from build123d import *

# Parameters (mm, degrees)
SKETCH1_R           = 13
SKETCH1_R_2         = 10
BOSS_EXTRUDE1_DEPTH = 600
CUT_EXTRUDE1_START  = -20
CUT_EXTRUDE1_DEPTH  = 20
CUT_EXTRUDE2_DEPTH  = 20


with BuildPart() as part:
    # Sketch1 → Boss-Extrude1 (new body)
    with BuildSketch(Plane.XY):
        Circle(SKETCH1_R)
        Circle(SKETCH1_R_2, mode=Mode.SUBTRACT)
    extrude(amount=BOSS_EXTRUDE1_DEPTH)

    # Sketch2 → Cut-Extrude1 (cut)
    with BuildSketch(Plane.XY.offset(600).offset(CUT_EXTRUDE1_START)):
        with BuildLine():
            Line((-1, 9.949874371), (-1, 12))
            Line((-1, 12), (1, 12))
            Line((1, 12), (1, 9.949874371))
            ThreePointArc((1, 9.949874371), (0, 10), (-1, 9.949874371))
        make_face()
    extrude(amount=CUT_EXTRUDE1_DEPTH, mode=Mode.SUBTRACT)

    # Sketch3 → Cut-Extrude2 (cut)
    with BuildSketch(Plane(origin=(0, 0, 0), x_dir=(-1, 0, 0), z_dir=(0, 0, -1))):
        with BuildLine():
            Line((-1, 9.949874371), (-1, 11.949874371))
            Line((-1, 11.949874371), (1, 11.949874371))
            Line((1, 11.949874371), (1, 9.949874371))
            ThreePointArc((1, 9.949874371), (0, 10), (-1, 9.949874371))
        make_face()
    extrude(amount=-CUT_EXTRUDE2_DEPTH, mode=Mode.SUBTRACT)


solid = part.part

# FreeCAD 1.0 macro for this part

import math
import FreeCAD as App
import Part
import Sketcher
Q = App.Units.Quantity

doc = App.newDocument("Part")
body = doc.addObject("PartDesign::Body", "Body")

# Sketch on XY plane
sketch1 = body.newObject("Sketcher::SketchObject", "Sketch")
sketch1.AttachmentSupport = (doc.getObject("XY_Plane"), [""])
sketch1.MapMode = "FlatFace"
sketch1.addGeometry(Part.Circle(App.Vector(0, 0, 0), App.Vector(0, 0, 1), 13), False)
sketch1.addGeometry(Part.Circle(App.Vector(0, 0, 0), App.Vector(0, 0, 1), 10), False)
sketch1.addConstraint(Sketcher.Constraint("Coincident", 0, 3, -1, 1))
sketch1.addConstraint(Sketcher.Constraint("Coincident", 1, 3, -1, 1))
sketch1.addConstraint(Sketcher.Constraint("Diameter", 0, Q("26 mm")))
sketch1.addConstraint(Sketcher.Constraint("Diameter", 1, Q("20 mm")))
pad1 = body.newObject("PartDesign::Pad", "Pad")
pad1.Profile = sketch1
pad1.Length = 600

# Sketch on XY plane
sketch2 = body.newObject("Sketcher::SketchObject", "Sketch001")
sketch2.AttachmentSupport = (doc.getObject("XY_Plane"), [""])
sketch2.MapMode = "FlatFace"
sketch2.AttachmentOffset = App.Placement(App.Vector(0, 0, 580), App.Rotation())
sketch2.addGeometry(Part.LineSegment(App.Vector(-1, 12, 0), App.Vector(-1, 9.9, 0)), False)
sketch2.addGeometry(Part.ArcOfCircle(Part.Circle(App.Vector(0, 0, 0), App.Vector(0, 0, 1), 10), math.radians(84.26), math.radians(95.74)), False)
sketch2.addGeometry(Part.LineSegment(App.Vector(1, 9.9, 0), App.Vector(1, 12, 0)), False)
sketch2.addGeometry(Part.LineSegment(App.Vector(1, 12, 0), App.Vector(-1, 12, 0)), False)
sketch2.addConstraint(Sketcher.Constraint("Coincident", 0, 2, 1, 2))
sketch2.addConstraint(Sketcher.Constraint("Coincident", 1, 1, 2, 1))
sketch2.addConstraint(Sketcher.Constraint("Coincident", 2, 2, 3, 1))
sketch2.addConstraint(Sketcher.Constraint("Coincident", 3, 2, 0, 1))
sketch2.addConstraint(Sketcher.Constraint("Vertical", 0))
sketch2.addConstraint(Sketcher.Constraint("Vertical", 2))
sketch2.addConstraint(Sketcher.Constraint("Horizontal", 3))
sketch2.addConstraint(Sketcher.Constraint("Coincident", 1, 3, -1, 1))
sketch2.addConstraint(Sketcher.Constraint("Horizontal", 0, 2, 1, 1))
sketch2.addConstraint(Sketcher.Constraint("Radius", 1, Q("10 mm")))
sketch2.addConstraint(Sketcher.Constraint("DistanceX", 3, 2, 3, 1, Q("2 mm")))
sketch2.addConstraint(Sketcher.Constraint("DistanceY", -1, 1, 2, 2, Q("12 mm")))
pocket1 = body.newObject("PartDesign::Pocket", "Pocket")
pocket1.Profile = sketch2
pocket1.Length = 20
pocket1.Reversed = True

# Sketch on XY plane
sketch3 = body.newObject("Sketcher::SketchObject", "Sketch002")
sketch3.AttachmentSupport = (doc.getObject("XY_Plane"), [""])
sketch3.MapMode = "FlatFace"
sketch3.addGeometry(Part.LineSegment(App.Vector(1, 11.9, 0), App.Vector(1, 9.9, 0)), False)
sketch3.addGeometry(Part.ArcOfCircle(Part.Circle(App.Vector(0, 0, 0), App.Vector(0, 0, 1), 10), math.radians(84.26), math.radians(95.74)), False)
sketch3.addGeometry(Part.LineSegment(App.Vector(-1, 9.9, 0), App.Vector(-1, 11.9, 0)), False)
sketch3.addGeometry(Part.LineSegment(App.Vector(-1, 11.9, 0), App.Vector(1, 11.9, 0)), False)
sketch3.addConstraint(Sketcher.Constraint("Coincident", 0, 2, 1, 1))
sketch3.addConstraint(Sketcher.Constraint("Coincident", 1, 2, 2, 1))
sketch3.addConstraint(Sketcher.Constraint("Coincident", 2, 2, 3, 1))
sketch3.addConstraint(Sketcher.Constraint("Coincident", 3, 2, 0, 1))
sketch3.addConstraint(Sketcher.Constraint("Vertical", 0))
sketch3.addConstraint(Sketcher.Constraint("Vertical", 2))
sketch3.addConstraint(Sketcher.Constraint("Horizontal", 3))
sketch3.addConstraint(Sketcher.Constraint("Coincident", 1, 3, -1, 1))
sketch3.addConstraint(Sketcher.Constraint("Horizontal", 0, 2, 1, 2))
sketch3.addConstraint(Sketcher.Constraint("Equal", 3, 0))
sketch3.addConstraint(Sketcher.Constraint("Radius", 1, Q("10 mm")))
sketch3.addConstraint(Sketcher.Constraint("DistanceX", 3, 1, 3, 2, Q("2 mm")))
pocket2 = body.newObject("PartDesign::Pocket", "Pocket001")
pocket2.Profile = sketch3
pocket2.Length = 20
pocket2.Reversed = True

doc.recompute()
